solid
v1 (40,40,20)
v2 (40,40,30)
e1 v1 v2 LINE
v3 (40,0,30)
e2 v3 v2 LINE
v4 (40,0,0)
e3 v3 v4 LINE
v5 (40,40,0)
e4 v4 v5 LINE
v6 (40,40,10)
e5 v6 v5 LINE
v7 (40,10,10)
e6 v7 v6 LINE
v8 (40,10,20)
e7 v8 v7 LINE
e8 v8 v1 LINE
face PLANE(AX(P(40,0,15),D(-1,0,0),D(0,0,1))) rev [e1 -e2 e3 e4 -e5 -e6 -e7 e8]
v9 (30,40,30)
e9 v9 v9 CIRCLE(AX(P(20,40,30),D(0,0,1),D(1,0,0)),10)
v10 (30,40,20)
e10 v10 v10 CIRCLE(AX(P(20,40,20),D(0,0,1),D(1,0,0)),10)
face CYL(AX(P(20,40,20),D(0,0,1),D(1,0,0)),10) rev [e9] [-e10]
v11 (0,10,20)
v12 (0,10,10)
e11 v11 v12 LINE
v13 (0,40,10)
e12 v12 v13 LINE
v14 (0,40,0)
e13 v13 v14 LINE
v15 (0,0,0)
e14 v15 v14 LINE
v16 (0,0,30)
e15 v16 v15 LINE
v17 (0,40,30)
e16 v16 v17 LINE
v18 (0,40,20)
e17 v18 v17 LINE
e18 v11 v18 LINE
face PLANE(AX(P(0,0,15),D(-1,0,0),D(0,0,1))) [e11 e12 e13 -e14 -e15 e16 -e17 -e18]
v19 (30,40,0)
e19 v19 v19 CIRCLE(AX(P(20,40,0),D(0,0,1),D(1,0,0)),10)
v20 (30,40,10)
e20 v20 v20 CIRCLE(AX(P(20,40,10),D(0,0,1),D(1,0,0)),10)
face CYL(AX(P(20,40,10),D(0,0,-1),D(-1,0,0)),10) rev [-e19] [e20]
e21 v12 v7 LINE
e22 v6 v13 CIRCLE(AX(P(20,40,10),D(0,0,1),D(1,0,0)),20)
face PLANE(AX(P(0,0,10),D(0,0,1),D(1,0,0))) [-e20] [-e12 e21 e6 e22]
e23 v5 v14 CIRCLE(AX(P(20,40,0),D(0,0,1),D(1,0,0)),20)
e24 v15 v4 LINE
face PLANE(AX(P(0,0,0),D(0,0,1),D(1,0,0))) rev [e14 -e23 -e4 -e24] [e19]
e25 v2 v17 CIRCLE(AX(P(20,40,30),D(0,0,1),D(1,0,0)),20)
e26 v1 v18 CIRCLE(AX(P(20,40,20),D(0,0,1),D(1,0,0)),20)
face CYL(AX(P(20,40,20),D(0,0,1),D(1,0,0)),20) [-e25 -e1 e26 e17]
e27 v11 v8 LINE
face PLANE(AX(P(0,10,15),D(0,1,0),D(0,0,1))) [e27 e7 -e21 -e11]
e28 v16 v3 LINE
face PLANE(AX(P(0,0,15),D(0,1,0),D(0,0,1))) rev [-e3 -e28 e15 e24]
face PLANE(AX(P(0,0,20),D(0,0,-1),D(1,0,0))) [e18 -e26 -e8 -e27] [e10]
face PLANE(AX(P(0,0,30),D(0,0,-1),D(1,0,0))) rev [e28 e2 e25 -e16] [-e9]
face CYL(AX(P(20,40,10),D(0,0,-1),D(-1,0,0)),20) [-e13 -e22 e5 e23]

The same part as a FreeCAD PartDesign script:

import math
import FreeCAD as App
import Part
import Sketcher
Q = App.Units.Quantity

doc = App.newDocument("Part")
body = doc.addObject("PartDesign::Body", "Body")

# Sketch on XY plane
sketch1 = body.newObject("Sketcher::SketchObject", "Sketch")
sketch1.AttachmentSupport = (doc.getObject("XY_Plane"), [""])
sketch1.MapMode = "FlatFace"
sketch1.addGeometry(Part.LineSegment(App.Vector(0, 10, 0), App.Vector(0, 0, 0)), False)
sketch1.addGeometry(Part.LineSegment(App.Vector(0, 0, 0), App.Vector(40, 0, 0)), False)
sketch1.addGeometry(Part.LineSegment(App.Vector(40, 0, 0), App.Vector(40, 10, 0)), False)
sketch1.addGeometry(Part.LineSegment(App.Vector(40, 10, 0), App.Vector(0, 10, 0)), False)
sketch1.addConstraint(Sketcher.Constraint("Coincident", 0, 2, 1, 1))
sketch1.addConstraint(Sketcher.Constraint("Coincident", 1, 2, 2, 1))
sketch1.addConstraint(Sketcher.Constraint("Coincident", 2, 2, 3, 1))
sketch1.addConstraint(Sketcher.Constraint("Coincident", 3, 2, 0, 1))
sketch1.addConstraint(Sketcher.Constraint("Vertical", 0))
sketch1.addConstraint(Sketcher.Constraint("Horizontal", 1))
sketch1.addConstraint(Sketcher.Constraint("Vertical", 2))
sketch1.addConstraint(Sketcher.Constraint("Horizontal", 3))
sketch1.addConstraint(Sketcher.Constraint("Coincident", 0, 2, -1, 1))
sketch1.addConstraint(Sketcher.Constraint("DistanceX", 1, 1, 1, 2, Q("40 mm")))
sketch1.addConstraint(Sketcher.Constraint("DistanceY", 0, 2, 0, 1, Q("10 mm")))
pad1 = body.newObject("PartDesign::Pad", "Pad")
pad1.Profile = sketch1
pad1.Length = 15

# Sketch on XY plane
sketch2 = body.newObject("Sketcher::SketchObject", "Sketch001")
sketch2.AttachmentSupport = (doc.getObject("XY_Plane"), [""])
sketch2.MapMode = "FlatFace"
sketch2.addGeometry(Part.LineSegment(App.Vector(0, 40, 0), App.Vector(0, 10, 0)), False)
sketch2.addGeometry(Part.LineSegment(App.Vector(0, 10, 0), App.Vector(40, 10, 0)), False)
sketch2.addGeometry(Part.LineSegment(App.Vector(40, 10, 0), App.Vector(40, 40, 0)), False)
sketch2.addGeometry(Part.ArcOfCircle(Part.Circle(App.Vector(20, 40, 0), App.Vector(0, 0, 1), 20), math.radians(0), math.radians(180)), False)
sketch2.addGeometry(Part.Circle(App.Vector(20, 40, 0), App.Vector(0, 0, 1), 10), False)
sketch2.addConstraint(Sketcher.Constraint("Coincident", 0, 2, 1, 1))
sketch2.addConstraint(Sketcher.Constraint("Coincident", 1, 2, 2, 1))
sketch2.addConstraint(Sketcher.Constraint("Tangent", 2, 2, 3, 1))
sketch2.addConstraint(Sketcher.Constraint("Tangent", 3, 2, 0, 1))
sketch2.addConstraint(Sketcher.Constraint("Vertical", 0))
sketch2.addConstraint(Sketcher.Constraint("Horizontal", 1))
sketch2.addConstraint(Sketcher.Constraint("Vertical", 2))
sketch2.addConstraint(Sketcher.Constraint("Coincident", 4, 3, 3, 3))
sketch2.addConstraint(Sketcher.Constraint("PointOnObject", 0, 2, -2))
sketch2.addConstraint(Sketcher.Constraint("Diameter", 4, Q("20 mm")))
sketch2.addConstraint(Sketcher.Constraint("Radius", 3, Q("20 mm")))
sketch2.addConstraint(Sketcher.Constraint("DistanceY", 0, 2, 0, 1, Q("30 mm")))
sketch2.addConstraint(Sketcher.Constraint("DistanceY", -1, 1, 3, 3, Q("40 mm")))
pad2 = body.newObject("PartDesign::Pad", "Pad001")
pad2.Profile = sketch2
pad2.Length = 10
doc.recompute()

datumplane = body.newObject("PartDesign::Plane", "DatumPlane")
datumplane.AttachmentSupport = (doc.getObject("XY_Plane"), [""])
datumplane.MapMode = "FlatFace"
datumplane.AttachmentOffset = App.Placement(App.Vector(0, 0, 15), App.Rotation())
mirrored = body.newObject("PartDesign::Mirrored", "Mirrored")
mirrored.Originals = [pad1, pad2]
mirrored.MirrorPlane = (datumplane, [""])
body.Tip = mirrored

doc.recompute()
